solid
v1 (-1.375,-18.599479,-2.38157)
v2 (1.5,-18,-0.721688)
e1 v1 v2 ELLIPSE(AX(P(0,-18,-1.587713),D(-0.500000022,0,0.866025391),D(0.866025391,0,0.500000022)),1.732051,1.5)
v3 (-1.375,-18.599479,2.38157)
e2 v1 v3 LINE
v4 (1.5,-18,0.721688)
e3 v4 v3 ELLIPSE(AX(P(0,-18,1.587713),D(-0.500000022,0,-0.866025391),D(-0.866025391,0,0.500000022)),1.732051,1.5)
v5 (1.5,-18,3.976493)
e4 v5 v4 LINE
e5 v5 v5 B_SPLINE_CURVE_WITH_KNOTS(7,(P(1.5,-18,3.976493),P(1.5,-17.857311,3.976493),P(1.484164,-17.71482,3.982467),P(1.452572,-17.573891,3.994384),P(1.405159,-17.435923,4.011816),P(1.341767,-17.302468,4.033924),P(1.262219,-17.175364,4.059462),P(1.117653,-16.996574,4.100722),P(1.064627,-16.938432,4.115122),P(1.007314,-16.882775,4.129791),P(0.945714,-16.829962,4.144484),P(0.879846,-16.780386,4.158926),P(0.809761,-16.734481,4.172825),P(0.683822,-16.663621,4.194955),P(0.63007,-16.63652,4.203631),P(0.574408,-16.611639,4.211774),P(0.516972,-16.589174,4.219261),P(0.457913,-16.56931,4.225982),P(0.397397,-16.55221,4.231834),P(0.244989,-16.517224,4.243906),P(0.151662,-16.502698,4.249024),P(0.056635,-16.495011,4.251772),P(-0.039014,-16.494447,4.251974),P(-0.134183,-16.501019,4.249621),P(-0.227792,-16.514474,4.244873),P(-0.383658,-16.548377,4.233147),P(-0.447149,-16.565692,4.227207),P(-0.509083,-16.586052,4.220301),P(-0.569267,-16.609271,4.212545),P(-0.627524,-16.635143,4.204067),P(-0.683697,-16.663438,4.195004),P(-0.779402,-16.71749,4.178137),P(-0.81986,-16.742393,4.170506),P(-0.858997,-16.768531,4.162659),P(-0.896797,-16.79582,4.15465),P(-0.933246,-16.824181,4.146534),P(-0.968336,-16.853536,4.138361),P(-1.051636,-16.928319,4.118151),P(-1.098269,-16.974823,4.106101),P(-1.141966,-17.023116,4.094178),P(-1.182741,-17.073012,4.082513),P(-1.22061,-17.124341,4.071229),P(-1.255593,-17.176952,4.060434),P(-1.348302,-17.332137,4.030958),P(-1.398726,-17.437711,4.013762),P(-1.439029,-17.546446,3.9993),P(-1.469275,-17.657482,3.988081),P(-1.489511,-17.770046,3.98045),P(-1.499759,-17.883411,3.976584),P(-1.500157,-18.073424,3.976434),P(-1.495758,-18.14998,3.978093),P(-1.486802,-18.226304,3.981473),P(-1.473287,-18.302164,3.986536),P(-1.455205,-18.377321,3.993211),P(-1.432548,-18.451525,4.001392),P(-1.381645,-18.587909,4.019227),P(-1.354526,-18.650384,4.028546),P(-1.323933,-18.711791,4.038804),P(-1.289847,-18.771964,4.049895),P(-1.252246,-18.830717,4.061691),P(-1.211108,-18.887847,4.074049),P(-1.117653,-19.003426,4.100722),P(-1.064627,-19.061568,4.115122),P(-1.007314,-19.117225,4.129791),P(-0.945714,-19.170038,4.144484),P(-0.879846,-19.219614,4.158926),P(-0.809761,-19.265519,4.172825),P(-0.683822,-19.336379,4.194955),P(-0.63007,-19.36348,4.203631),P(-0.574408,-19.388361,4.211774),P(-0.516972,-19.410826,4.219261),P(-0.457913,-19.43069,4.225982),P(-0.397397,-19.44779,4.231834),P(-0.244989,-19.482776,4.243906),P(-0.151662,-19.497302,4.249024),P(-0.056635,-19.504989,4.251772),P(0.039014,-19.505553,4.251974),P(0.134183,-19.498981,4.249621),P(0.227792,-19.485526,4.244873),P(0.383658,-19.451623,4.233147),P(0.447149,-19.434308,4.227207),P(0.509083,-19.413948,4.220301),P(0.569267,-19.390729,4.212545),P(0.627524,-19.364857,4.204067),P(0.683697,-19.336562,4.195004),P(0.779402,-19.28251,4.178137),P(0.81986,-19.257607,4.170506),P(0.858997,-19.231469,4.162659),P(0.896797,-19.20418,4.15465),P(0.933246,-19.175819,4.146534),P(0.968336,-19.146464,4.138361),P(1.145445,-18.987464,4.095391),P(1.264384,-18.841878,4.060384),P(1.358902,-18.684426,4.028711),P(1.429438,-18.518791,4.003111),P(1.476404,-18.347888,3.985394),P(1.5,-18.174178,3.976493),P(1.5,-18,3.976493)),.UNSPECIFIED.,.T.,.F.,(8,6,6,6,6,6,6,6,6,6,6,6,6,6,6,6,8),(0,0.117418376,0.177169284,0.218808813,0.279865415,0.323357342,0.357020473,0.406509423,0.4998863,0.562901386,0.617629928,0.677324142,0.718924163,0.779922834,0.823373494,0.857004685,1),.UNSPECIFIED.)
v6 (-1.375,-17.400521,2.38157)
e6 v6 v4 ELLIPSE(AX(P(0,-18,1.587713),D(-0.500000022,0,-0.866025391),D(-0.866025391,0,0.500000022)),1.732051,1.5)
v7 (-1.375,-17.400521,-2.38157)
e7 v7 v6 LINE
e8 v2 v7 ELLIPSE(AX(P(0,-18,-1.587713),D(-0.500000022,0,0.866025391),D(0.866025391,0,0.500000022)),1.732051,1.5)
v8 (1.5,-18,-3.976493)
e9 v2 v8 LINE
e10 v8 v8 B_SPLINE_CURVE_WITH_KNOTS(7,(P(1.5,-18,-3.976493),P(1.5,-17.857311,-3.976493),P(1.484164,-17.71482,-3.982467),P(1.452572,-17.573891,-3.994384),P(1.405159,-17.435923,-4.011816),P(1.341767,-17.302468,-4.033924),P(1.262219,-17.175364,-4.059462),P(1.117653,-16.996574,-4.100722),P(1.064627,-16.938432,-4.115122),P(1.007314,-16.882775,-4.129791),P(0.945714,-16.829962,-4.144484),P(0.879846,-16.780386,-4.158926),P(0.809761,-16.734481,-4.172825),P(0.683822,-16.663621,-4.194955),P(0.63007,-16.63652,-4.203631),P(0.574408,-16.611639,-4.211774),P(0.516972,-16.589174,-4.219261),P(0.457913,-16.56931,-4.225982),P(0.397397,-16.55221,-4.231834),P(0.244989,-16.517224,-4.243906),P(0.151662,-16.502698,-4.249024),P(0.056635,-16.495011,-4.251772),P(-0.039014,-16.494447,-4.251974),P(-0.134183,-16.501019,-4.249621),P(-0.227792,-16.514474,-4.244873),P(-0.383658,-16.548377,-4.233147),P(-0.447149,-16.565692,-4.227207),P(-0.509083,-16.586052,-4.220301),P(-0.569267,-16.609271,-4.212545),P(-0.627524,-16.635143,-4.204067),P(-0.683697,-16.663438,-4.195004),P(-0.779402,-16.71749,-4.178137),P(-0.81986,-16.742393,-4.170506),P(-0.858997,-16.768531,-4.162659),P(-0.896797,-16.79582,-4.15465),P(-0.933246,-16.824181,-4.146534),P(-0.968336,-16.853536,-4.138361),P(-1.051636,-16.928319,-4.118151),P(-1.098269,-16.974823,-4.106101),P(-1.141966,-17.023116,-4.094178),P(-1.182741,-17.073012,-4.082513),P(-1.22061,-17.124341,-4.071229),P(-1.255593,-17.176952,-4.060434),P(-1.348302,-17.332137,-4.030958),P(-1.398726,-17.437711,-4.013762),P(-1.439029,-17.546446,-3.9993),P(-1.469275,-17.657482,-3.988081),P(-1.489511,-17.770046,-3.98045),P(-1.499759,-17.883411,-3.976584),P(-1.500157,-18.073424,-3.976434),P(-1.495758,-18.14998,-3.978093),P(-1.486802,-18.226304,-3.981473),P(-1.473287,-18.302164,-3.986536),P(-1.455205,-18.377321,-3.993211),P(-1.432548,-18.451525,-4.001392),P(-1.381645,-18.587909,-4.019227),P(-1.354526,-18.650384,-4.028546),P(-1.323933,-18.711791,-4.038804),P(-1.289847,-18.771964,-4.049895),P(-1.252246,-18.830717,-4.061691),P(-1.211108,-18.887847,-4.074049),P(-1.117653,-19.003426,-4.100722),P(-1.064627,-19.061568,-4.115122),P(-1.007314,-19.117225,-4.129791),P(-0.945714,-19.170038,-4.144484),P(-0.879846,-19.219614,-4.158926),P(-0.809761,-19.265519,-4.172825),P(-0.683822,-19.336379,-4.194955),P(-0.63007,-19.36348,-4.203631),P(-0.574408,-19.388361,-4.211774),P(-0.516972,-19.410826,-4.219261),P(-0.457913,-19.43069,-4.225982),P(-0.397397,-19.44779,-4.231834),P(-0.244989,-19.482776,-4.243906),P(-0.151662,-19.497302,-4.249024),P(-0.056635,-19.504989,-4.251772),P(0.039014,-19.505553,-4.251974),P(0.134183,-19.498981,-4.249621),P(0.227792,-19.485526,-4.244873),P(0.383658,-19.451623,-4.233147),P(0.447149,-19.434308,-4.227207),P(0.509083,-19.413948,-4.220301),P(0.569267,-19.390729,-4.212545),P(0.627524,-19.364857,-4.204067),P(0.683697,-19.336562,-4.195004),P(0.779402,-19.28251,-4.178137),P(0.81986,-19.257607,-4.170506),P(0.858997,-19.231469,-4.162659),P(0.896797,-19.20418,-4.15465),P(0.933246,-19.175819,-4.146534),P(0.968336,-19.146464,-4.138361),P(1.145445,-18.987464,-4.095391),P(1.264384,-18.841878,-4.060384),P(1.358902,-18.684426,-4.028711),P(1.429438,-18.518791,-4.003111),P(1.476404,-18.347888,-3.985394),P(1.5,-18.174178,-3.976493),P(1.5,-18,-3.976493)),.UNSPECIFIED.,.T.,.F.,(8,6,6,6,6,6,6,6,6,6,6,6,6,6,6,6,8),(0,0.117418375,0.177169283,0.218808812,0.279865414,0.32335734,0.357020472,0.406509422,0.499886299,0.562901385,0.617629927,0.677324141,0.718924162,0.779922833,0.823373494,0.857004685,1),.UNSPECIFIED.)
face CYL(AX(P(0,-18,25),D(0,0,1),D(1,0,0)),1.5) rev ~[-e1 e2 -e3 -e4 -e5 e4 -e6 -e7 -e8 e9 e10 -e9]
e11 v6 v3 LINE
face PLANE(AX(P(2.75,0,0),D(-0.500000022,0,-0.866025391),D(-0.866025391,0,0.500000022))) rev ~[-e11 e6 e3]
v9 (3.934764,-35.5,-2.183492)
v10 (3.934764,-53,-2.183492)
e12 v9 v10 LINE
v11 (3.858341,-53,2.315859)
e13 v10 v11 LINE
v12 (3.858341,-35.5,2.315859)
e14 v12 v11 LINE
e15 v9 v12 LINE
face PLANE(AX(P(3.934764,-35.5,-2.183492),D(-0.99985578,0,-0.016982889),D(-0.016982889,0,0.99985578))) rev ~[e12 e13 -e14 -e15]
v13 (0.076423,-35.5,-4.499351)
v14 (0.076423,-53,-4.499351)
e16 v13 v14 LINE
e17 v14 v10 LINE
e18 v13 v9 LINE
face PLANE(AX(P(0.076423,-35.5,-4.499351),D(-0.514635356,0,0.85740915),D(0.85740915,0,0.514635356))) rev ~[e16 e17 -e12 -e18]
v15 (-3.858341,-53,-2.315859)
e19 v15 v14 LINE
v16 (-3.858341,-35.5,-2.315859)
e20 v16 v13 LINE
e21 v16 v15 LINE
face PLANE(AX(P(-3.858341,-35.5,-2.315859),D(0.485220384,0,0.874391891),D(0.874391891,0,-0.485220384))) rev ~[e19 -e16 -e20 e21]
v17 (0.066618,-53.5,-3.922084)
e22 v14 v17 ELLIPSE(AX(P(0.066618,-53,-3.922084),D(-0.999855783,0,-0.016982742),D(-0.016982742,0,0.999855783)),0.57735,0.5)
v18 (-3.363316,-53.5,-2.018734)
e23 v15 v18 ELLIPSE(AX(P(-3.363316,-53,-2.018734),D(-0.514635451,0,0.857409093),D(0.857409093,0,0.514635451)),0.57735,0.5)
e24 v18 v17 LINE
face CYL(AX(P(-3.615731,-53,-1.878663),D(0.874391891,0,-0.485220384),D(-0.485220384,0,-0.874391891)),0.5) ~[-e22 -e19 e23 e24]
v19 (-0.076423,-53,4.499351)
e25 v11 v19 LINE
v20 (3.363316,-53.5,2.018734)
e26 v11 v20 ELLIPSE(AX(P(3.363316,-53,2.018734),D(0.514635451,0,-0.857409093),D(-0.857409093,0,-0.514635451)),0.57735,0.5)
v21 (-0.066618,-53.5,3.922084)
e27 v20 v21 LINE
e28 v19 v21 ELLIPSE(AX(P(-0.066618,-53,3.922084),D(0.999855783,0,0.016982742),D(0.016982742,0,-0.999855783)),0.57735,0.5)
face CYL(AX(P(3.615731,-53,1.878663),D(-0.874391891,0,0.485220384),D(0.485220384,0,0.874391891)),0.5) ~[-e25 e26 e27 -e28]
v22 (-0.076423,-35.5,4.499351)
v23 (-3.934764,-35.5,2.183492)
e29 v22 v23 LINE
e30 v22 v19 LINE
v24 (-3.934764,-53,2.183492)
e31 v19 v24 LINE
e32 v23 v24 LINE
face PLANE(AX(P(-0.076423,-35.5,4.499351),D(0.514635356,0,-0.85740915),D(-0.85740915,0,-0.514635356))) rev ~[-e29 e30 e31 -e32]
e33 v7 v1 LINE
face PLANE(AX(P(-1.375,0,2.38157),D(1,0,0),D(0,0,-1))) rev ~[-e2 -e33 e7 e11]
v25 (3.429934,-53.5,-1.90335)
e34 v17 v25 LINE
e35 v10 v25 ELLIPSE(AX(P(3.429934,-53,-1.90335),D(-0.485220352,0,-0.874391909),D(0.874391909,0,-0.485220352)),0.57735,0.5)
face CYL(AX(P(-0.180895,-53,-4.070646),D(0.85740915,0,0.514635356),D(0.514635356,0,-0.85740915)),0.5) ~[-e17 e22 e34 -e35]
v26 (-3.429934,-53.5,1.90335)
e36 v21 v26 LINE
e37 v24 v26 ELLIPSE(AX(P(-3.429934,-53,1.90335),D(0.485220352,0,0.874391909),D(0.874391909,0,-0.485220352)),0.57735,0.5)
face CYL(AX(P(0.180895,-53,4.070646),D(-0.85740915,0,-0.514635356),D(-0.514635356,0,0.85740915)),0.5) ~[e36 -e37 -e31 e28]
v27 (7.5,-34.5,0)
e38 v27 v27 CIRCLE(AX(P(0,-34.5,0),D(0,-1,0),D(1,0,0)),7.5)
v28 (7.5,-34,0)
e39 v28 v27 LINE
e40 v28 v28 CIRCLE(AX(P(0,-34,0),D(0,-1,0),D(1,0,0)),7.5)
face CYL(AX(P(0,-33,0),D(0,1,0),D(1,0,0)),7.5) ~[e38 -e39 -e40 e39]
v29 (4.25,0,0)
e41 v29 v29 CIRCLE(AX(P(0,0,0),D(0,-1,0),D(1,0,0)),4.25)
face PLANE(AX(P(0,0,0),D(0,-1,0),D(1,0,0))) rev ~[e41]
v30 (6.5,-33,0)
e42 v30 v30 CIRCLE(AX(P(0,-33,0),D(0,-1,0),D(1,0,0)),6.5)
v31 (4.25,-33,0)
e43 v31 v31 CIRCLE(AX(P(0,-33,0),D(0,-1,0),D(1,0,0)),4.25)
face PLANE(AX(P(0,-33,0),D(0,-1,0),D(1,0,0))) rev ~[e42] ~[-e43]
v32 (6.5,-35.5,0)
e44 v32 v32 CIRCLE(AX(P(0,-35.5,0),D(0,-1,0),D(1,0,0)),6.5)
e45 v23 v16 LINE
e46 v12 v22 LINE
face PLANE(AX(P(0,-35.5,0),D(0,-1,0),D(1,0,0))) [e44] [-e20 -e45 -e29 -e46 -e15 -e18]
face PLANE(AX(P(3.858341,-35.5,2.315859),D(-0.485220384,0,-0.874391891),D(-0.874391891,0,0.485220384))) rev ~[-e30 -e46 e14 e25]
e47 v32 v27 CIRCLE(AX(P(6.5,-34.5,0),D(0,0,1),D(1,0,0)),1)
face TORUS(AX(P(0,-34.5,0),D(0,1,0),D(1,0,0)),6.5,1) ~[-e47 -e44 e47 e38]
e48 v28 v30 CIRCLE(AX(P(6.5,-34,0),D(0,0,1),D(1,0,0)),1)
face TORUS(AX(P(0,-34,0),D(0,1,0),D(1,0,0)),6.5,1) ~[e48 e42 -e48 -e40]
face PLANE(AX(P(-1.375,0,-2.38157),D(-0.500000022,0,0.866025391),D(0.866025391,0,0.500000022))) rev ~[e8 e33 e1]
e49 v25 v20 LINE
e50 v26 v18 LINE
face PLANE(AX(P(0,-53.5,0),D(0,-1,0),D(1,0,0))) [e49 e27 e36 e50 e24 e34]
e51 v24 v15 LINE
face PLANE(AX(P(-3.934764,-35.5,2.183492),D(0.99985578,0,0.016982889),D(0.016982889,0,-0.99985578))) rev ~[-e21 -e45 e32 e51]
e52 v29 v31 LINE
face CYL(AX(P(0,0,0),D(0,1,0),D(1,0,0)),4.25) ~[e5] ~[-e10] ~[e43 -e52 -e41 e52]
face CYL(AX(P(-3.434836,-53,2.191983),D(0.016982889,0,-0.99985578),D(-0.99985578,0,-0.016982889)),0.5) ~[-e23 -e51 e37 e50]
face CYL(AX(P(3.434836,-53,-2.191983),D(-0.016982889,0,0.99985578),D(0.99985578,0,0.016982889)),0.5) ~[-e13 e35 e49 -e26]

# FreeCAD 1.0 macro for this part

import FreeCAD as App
import Part
import Sketcher

V = App.Vector
Q = App.Units.Quantity


def edges_at(feature, points):
    """Names of the edges that pass closest to the given points."""
    edges = feature.Shape.Edges
    near = lambda p: min(range(len(edges)), key=lambda i: edges[i].distToShape(Part.Vertex(*p))[0])
    return sorted({f"Edge{near(p) + 1}" for p in points})

doc = App.newDocument("Part")
params = doc.addObject("Spreadsheet::Sheet", "Params")
for row, (alias, value) in enumerate([
    ("sketch1_diameter", "8.5 mm"),
    ("pad1_length", "33 mm"),
    ("pocket1_length", "6 mm"),
    ("sketch3_diameter", "15 mm"),
    ("pad2_length", "2.5 mm"),
    ("sketch4_length", "4.5 mm"),
    ("pad3_length", "18 mm"),
    ("fillet_radius", "0.5 mm"),
    ("fillet2_radius", "1 mm"),
    ("sketch5_diameter", "3 mm"),
    ("pocket2_length", "40 mm"),
    ("pad4_length", "25 mm"),
], start=1):
    params.set(f"A{row}", alias)
    params.set(f"B{row}", "=" + value)
    params.setAlias(f"B{row}", alias)

body = doc.addObject("PartDesign::Body", "Body")

sketch1 = body.newObject("Sketcher::SketchObject", "Sketch")
sketch1.AttachmentSupport = (doc.getObject("XZ_Plane"), [""])
sketch1.MapMode = "FlatFace"
sketch1.addGeometry(Part.Circle(V(0, 0, 0), V(0, 0, 1), 4.2), False)
sketch1.addConstraint(Sketcher.Constraint("Coincident", 0, 3, -1, 1))
sketch1.addConstraint(Sketcher.Constraint("Diameter", 0, Q("8.5 mm")))
sketch1.setExpression("Constraints[1]", "Params.sketch1_diameter")
pad1 = body.newObject("PartDesign::Pad", "Pad")
pad1.Profile = sketch1
pad1.setExpression("Length", "Params.pad1_length")

sketch2 = body.newObject("Sketcher::SketchObject", "Sketch001")
sketch2.AttachmentSupport = (doc.getObject("XZ_Plane"), [""])
sketch2.MapMode = "FlatFace"
sketch2.addGeometry(Part.LineSegment(V(-1.4, -2.4, 0), V(2.8, 0, 0)), False)
sketch2.addGeometry(Part.LineSegment(V(2.8, 0, 0), V(-1.4, 2.4, 0)), False)
sketch2.addGeometry(Part.LineSegment(V(-1.4, 2.4, 0), V(-1.4, -2.4, 0)), False)
sketch2.addConstraint(Sketcher.Constraint("Coincident", 0, 2, 1, 1))
sketch2.addConstraint(Sketcher.Constraint("Coincident", 1, 2, 2, 1))
sketch2.addConstraint(Sketcher.Constraint("Coincident", 2, 2, 0, 1))
sketch2.addConstraint(Sketcher.Constraint("Vertical", 2))
sketch2.addConstraint(Sketcher.Constraint("PointOnObject", 0, 2, -1))
sketch2.addConstraint(Sketcher.Constraint("Equal", 0, 1))
sketch2.addConstraint(Sketcher.Constraint("Angle", 0, Q("30.000001 deg")))
sketch2.addConstraint(Sketcher.Constraint("DistanceX", -1, 1, 0, 2, Q("2.75 mm")))
sketch2.addConstraint(Sketcher.Constraint("DistanceX", 1, 2, -1, 1, Q("1.375 mm")))
pocket1 = body.newObject("PartDesign::Pocket", "Pocket")
pocket1.Profile = sketch2
pocket1.setExpression("Length", "Params.pocket1_length")
pocket1.Reversed = True

sketch3 = body.newObject("Sketcher::SketchObject", "Sketch002")
sketch3.AttachmentSupport = (doc.getObject("XZ_Plane"), [""])
sketch3.MapMode = "FlatFace"
sketch3.AttachmentOffset = App.Placement(V(0, 0, 33), App.Rotation())
sketch3.addGeometry(Part.Circle(V(0, 0, 0), V(0, 0, 1), 8), False)
sketch3.addConstraint(Sketcher.Constraint("Coincident", 0, 3, -1, 1))
sketch3.addConstraint(Sketcher.Constraint("Diameter", 0, Q("15 mm")))
sketch3.setExpression("Constraints[1]", "Params.sketch3_diameter")
pad2 = body.newObject("PartDesign::Pad", "Pad001")
pad2.Profile = sketch3
pad2.setExpression("Length", "Params.pad2_length")

sketch4 = body.newObject("Sketcher::SketchObject", "Sketch003")
sketch4.AttachmentSupport = (doc.getObject("XZ_Plane"), [""])
sketch4.MapMode = "FlatFace"
sketch4.AttachmentOffset = App.Placement(V(0, 0, 35.5), App.Rotation())
sketch4.addGeometry(Part.LineSegment(V(0.1, -4.5, 0), V(3.9, -2.2, 0)), False)
sketch4.addGeometry(Part.LineSegment(V(3.9, -2.2, 0), V(3.9, 2.3, 0)), False)
sketch4.addGeometry(Part.LineSegment(V(3.9, 2.3, 0), V(-0.1, 4.5, 0)), False)
sketch4.addGeometry(Part.LineSegment(V(-0.1, 4.5, 0), V(-3.9, 2.2, 0)), False)
sketch4.addGeometry(Part.LineSegment(V(-3.9, 2.2, 0), V(-3.9, -2.3, 0)), False)
sketch4.addGeometry(Part.LineSegment(V(-3.9, -2.3, 0), V(0.1, -4.5, 0)), False)
sketch4.addConstraint(Sketcher.Constraint("Coincident", 0, 2, 1, 1))
sketch4.addConstraint(Sketcher.Constraint("Coincident", 1, 2, 2, 1))
sketch4.addConstraint(Sketcher.Constraint("Coincident", 2, 2, 3, 1))
sketch4.addConstraint(Sketcher.Constraint("Coincident", 3, 2, 4, 1))
sketch4.addConstraint(Sketcher.Constraint("Coincident", 4, 2, 5, 1))
sketch4.addConstraint(Sketcher.Constraint("Coincident", 5, 2, 0, 1))
sketch4.addConstraint(Sketcher.Constraint("Symmetric", 0, 2, 3, 2, -1, 1))
sketch4.addConstraint(Sketcher.Constraint("Symmetric", 1, 2, 4, 2, -1, 1))
sketch4.addConstraint(Sketcher.Constraint("Symmetric", 2, 2, 5, 2, -1, 1))
sketch4.addConstraint(Sketcher.Constraint("Equal", 0, 1))
sketch4.addConstraint(Sketcher.Constraint("Equal", 1, 2))
sketch4.addConstraint(Sketcher.Constraint("Distance", 0, Q("4.5 mm")))
sketch4.addConstraint(Sketcher.Constraint("DistanceX", -1, 1, 1, 2, Q("3.858341 mm")))
sketch4.addConstraint(Sketcher.Constraint("DistanceY", -1, 1, 1, 2, Q("2.315859 mm")))
sketch4.addConstraint(Sketcher.Constraint("DistanceY", -1, 1, 2, 2, Q("4.499351 mm")))
sketch4.setExpression("Constraints[11]", "Params.sketch4_length")
pad3 = body.newObject("PartDesign::Pad", "Pad002")
pad3.Profile = sketch4
pad3.setExpression("Length", "Params.pad3_length")
doc.recompute()

fillet = body.newObject("PartDesign::Fillet", "Fillet")
fillet.Base = (pad3, edges_at(pad3, [
    (2.006, -53.5, -3.341),
    (-1.891, -53.5, -3.408),
    (-3.897, -53.5, -0.066),
    (-2.006, -53.5, 3.341),
    (1.891, -53.5, 3.408),
    (3.897, -53.5, 0.066),
]))
fillet.setExpression("Radius", "Params.fillet_radius")
doc.recompute()

fillet2 = body.newObject("PartDesign::Fillet", "Fillet001")
fillet2.Base = (fillet, edges_at(fillet, [(-7.5, -35.5, 0), (-7.5, -33, 0)]))
fillet2.setExpression("Radius", "Params.fillet2_radius")

sketch5 = body.newObject("Sketcher::SketchObject", "Sketch004")
sketch5.AttachmentSupport = (doc.getObject("XY_Plane"), [""])
sketch5.MapMode = "FlatFace"
sketch5.AttachmentOffset = App.Placement(V(0, 0, 25), App.Rotation())
sketch5.addGeometry(Part.Circle(V(0, -18, 0), V(0, 0, 1), 1.5), False)
sketch5.addConstraint(Sketcher.Constraint("PointOnObject", 0, 3, -2))
sketch5.addConstraint(Sketcher.Constraint("Diameter", 0, Q("3 mm")))
sketch5.addConstraint(Sketcher.Constraint("DistanceY", 0, 3, -1, 1, Q("18 mm")))
sketch5.setExpression("Constraints[1]", "Params.sketch5_diameter")
pocket2 = body.newObject("PartDesign::Pocket", "Pocket001")
pocket2.Profile = sketch5
pocket2.setExpression("Length", "Params.pocket2_length")

sketch6 = body.newObject("Sketcher::SketchObject", "Sketch005")
sketch6.AttachmentSupport = (doc.getObject("XZ_Plane"), [""])
sketch6.MapMode = "FlatFace"
sketch6.addGeometry(Part.LineSegment(V(-1.4, -2.4, 0), V(2.8, 0, 0)), False)
sketch6.addGeometry(Part.LineSegment(V(2.8, 0, 0), V(-1.4, 2.4, 0)), False)
sketch6.addGeometry(Part.LineSegment(V(-1.4, 2.4, 0), V(-1.4, -2.4, 0)), False)
sketch6.addConstraint(Sketcher.Constraint("Coincident", 0, 2, 1, 1))
sketch6.addConstraint(Sketcher.Constraint("Coincident", 1, 2, 2, 1))
sketch6.addConstraint(Sketcher.Constraint("Coincident", 2, 2, 0, 1))
sketch6.addConstraint(Sketcher.Constraint("Vertical", 2))
sketch6.addConstraint(Sketcher.Constraint("PointOnObject", 0, 2, -1))
sketch6.addConstraint(Sketcher.Constraint("Equal", 0, 1))
sketch6.addConstraint(Sketcher.Constraint("Angle", 0, Q("30.000001 deg")))
sketch6.addConstraint(Sketcher.Constraint("DistanceX", -1, 1, 0, 2, Q("2.75 mm")))
sketch6.addConstraint(Sketcher.Constraint("DistanceX", 1, 2, -1, 1, Q("1.375 mm")))
pad4 = body.newObject("PartDesign::Pad", "Pad003")
pad4.Profile = sketch6
pad4.setExpression("Length", "Params.pad4_length")

doc.recompute()
